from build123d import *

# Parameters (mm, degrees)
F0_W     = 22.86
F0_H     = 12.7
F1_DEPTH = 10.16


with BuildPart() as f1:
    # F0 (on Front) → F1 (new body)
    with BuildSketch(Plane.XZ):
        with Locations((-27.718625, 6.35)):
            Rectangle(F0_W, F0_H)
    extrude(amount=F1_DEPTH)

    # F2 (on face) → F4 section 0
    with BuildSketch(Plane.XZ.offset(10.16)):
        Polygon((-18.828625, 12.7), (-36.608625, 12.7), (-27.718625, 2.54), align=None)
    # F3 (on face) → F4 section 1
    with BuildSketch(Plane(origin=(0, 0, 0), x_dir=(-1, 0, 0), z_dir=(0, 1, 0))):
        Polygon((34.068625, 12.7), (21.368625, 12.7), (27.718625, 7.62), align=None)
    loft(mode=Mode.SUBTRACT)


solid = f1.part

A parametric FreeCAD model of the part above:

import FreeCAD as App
import Part
import Sketcher
Q = App.Units.Quantity


def add_polygon(sketch, points):
    """Adds a closed chain of lines whose ends are joined by coincident constraints."""
    first, n = sketch.GeometryCount, len(points)
    for a, b in zip(points, points[1:] + points[:1]):
        sketch.addGeometry(Part.LineSegment(App.Vector(*a, 0), App.Vector(*b, 0)), False)
    for i in range(n):
        sketch.addConstraint(Sketcher.Constraint("Coincident", first + i, 2, first + (i + 1) % n, 1))

doc = App.newDocument("Part")
body = doc.addObject("PartDesign::Body", "Body")

# Sketch on XZ plane
sketch1 = body.newObject("Sketcher::SketchObject", "Sketch")
sketch1.AttachmentSupport = (doc.getObject("XZ_Plane"), [""])
sketch1.MapMode = "FlatFace"
add_polygon(sketch1, [(-39, 13), (-39, 0), (-16, 0), (-16, 13)])  # lines 0-3
sketch1.addConstraint(Sketcher.Constraint("Vertical", 0))
sketch1.addConstraint(Sketcher.Constraint("Horizontal", 1))
sketch1.addConstraint(Sketcher.Constraint("Vertical", 2))
sketch1.addConstraint(Sketcher.Constraint("Horizontal", 3))
sketch1.addConstraint(Sketcher.Constraint("PointOnObject", 0, 2, -1))
sketch1.addConstraint(Sketcher.Constraint("DistanceX", 1, 1, 1, 2, Q("0.9 in")))
sketch1.addConstraint(Sketcher.Constraint("DistanceY", 0, 2, 0, 1, Q("0.5 in")))
sketch1.addConstraint(Sketcher.Constraint("DistanceX", 0, 2, -1, 1, 39.148625))
pad1 = body.newObject("PartDesign::Pad", "Pad")
pad1.Profile = sketch1
pad1.Length = Q("0.4 in")

# Sketch on XZ plane
sketch2 = body.newObject("Sketcher::SketchObject", "Sketch001")
sketch2.AttachmentSupport = (doc.getObject("XZ_Plane"), [""])
sketch2.MapMode = "FlatFace"
sketch2.AttachmentOffset = App.Placement(App.Vector(0, 0, 0.4 * 25.4), App.Rotation())
add_polygon(sketch2, [(-19, 13), (-37, 13), (-28, 3)])  # lines 0-2
sketch2.addConstraint(Sketcher.Constraint("Horizontal", 0))
sketch2.addConstraint(Sketcher.Constraint("Equal", 1, 2))
sketch2.addConstraint(Sketcher.Constraint("DistanceX", 0, 2, 0, 1, Q("0.7 in")))
sketch2.addConstraint(Sketcher.Constraint("DistanceY", -1, 1, 0, 2, Q("0.5 in")))
sketch2.addConstraint(Sketcher.Constraint("DistanceY", -1, 1, 1, 2, Q("0.1 in")))
sketch2.addConstraint(Sketcher.Constraint("DistanceX", 0, 2, -1, 1, 36.608625))

# Sketch on XZ plane
sketch3 = body.newObject("Sketcher::SketchObject", "Sketch002")
sketch3.AttachmentSupport = (doc.getObject("XZ_Plane"), [""])
sketch3.MapMode = "FlatFace"
add_polygon(sketch3, [(-34, 13), (-21, 13), (-28, 8)])  # lines 0-2
sketch3.addConstraint(Sketcher.Constraint("Horizontal", 0))
sketch3.addConstraint(Sketcher.Constraint("Equal", 1, 2))
sketch3.addConstraint(Sketcher.Constraint("DistanceX", 0, 1, 0, 2, Q("0.5 in")))
sketch3.addConstraint(Sketcher.Constraint("DistanceY", -1, 1, 0, 2, Q("0.5 in")))
sketch3.addConstraint(Sketcher.Constraint("DistanceY", -1, 1, 1, 2, Q("0.3 in")))
sketch3.addConstraint(Sketcher.Constraint("DistanceX", 0, 2, -1, 1, 21.368625))

subtractiveloft = body.newObject("PartDesign::SubtractiveLoft", "SubtractiveLoft")
subtractiveloft.Profile = sketch2
subtractiveloft.Sections = [sketch3]

doc.recompute()
